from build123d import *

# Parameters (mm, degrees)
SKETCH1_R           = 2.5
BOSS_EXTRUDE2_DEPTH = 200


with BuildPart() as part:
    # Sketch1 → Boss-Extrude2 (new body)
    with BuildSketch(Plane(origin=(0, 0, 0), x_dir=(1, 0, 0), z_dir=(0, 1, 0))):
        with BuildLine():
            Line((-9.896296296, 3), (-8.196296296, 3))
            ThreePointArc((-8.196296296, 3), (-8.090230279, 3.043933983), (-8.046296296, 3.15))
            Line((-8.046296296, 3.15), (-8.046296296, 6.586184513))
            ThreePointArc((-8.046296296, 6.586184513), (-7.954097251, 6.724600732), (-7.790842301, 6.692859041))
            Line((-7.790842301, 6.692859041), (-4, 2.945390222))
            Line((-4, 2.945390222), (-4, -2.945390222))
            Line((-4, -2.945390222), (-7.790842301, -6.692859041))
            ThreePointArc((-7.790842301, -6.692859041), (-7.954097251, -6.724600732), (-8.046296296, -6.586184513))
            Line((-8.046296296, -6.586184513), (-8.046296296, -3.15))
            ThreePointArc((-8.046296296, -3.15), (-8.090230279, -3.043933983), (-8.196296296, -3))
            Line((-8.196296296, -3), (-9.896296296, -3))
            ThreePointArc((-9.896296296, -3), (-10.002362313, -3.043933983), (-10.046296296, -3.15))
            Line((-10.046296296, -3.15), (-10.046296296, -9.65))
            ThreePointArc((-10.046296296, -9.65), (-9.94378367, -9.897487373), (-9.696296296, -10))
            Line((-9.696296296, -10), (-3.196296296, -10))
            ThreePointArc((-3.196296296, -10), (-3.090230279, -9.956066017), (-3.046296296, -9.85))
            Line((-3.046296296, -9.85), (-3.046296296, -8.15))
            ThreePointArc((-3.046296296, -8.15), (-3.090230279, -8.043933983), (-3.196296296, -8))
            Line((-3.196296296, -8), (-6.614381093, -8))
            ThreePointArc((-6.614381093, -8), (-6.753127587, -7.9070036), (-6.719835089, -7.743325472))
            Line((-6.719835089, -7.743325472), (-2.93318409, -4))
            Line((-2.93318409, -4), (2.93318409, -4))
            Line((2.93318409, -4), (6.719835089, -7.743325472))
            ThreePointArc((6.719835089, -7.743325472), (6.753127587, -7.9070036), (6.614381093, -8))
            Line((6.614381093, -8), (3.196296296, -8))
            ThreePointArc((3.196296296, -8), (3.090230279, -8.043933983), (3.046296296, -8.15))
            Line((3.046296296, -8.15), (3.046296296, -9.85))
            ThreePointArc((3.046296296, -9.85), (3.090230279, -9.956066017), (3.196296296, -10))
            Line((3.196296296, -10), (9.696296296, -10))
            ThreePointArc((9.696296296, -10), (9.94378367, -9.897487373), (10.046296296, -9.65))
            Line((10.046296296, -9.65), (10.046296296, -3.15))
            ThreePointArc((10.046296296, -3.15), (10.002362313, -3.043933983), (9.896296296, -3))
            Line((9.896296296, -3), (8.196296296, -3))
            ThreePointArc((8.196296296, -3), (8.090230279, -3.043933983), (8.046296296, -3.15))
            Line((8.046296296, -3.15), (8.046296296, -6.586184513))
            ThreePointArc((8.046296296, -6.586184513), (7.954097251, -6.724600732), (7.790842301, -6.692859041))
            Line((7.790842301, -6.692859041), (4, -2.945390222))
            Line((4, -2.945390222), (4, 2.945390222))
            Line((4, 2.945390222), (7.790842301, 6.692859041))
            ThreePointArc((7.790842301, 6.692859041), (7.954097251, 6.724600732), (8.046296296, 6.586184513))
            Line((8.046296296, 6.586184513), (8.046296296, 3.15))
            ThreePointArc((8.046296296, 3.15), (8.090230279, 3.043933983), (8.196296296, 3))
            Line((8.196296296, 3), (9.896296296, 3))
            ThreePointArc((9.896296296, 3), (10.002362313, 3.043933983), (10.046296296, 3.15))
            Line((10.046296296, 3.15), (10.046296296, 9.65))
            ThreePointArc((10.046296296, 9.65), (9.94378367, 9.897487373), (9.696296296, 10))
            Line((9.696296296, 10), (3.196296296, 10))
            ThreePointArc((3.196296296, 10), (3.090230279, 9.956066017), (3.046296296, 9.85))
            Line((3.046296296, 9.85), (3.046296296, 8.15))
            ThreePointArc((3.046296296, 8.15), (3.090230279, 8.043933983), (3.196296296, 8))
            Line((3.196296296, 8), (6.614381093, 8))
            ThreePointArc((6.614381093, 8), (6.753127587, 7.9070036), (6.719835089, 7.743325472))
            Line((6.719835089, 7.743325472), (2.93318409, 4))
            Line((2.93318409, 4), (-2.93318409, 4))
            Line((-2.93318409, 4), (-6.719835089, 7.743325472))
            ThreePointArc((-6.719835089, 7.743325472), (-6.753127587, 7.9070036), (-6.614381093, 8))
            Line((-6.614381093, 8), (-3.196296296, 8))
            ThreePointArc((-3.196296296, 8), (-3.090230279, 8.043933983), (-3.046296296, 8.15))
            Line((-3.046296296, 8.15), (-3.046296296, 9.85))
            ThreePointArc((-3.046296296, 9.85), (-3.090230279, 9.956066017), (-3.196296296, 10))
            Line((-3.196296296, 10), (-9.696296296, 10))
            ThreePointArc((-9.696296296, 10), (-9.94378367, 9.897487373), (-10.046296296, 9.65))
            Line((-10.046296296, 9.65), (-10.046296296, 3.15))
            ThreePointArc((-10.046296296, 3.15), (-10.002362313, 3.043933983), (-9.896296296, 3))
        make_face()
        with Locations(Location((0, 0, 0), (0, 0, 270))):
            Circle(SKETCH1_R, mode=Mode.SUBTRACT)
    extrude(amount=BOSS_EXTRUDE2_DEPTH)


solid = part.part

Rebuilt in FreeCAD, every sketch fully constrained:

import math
import FreeCAD as App
import Part
import Sketcher

V = App.Vector
Q = App.Units.Quantity

doc = App.newDocument("Part")
body = doc.addObject("PartDesign::Body", "Body")

sketch1 = doc.addObject("Sketcher::SketchObject", "Sketch")
body.addObject(sketch1)
sketch1.AttachmentSupport = (doc.XZ_Plane, [""])
sketch1.MapMode = "FlatFace"
sketch1.addGeometry([
    Part.LineSegment(V(-9.9, -3, 0), V(-8.2, -3, 0)),
    Part.ArcOfCircle(Part.Circle(V(-8.2, -3.15, 0), V(0, 0, 1), 0.15), math.radians(0), math.radians(90)),
    Part.LineSegment(V(-8.05, -3.15, 0), V(-8.05, -6.59, 0)),
    Part.ArcOfCircle(Part.Circle(V(-7.9, -6.59, 0), V(0, 0, 1), 0.15), math.radians(180), math.radians(315)),
    Part.LineSegment(V(-7.79, -6.69, 0), V(-4, -2.95, 0)),
    Part.LineSegment(V(-4, -2.95, 0), V(-4, 2.95, 0)),
    Part.LineSegment(V(-4, 2.95, 0), V(-7.79, 6.69, 0)),
    Part.ArcOfCircle(Part.Circle(V(-7.9, 6.59, 0), V(0, 0, 1), 0.15), math.radians(45), math.radians(180)),
    Part.LineSegment(V(-8.05, 6.59, 0), V(-8.05, 3.15, 0)),
    Part.ArcOfCircle(Part.Circle(V(-8.2, 3.15, 0), V(0, 0, 1), 0.15), math.radians(-90), math.radians(0)),
    Part.LineSegment(V(-8.2, 3, 0), V(-9.9, 3, 0)),
    Part.ArcOfCircle(Part.Circle(V(-9.9, 3.15, 0), V(0, 0, 1), 0.15), math.radians(-180), math.radians(-90)),
    Part.LineSegment(V(-10.05, 3.15, 0), V(-10.05, 9.65, 0)),
    Part.ArcOfCircle(Part.Circle(V(-9.7, 9.65, 0), V(0, 0, 1), 0.35), math.radians(90), math.radians(180)),
    Part.LineSegment(V(-9.7, 10, 0), V(-3.2, 10, 0)),
    Part.ArcOfCircle(Part.Circle(V(-3.2, 9.85, 0), V(0, 0, 1), 0.15), math.radians(0), math.radians(90)),
    Part.LineSegment(V(-3.05, 9.85, 0), V(-3.05, 8.15, 0)),
    Part.ArcOfCircle(Part.Circle(V(-3.2, 8.15, 0), V(0, 0, 1), 0.15), math.radians(-90), math.radians(0)),
    Part.LineSegment(V(-3.2, 8, 0), V(-6.61, 8, 0)),
    Part.ArcOfCircle(Part.Circle(V(-6.61, 7.85, 0), V(0, 0, 1), 0.15), math.radians(90), math.radians(225)),
    Part.LineSegment(V(-6.72, 7.74, 0), V(-2.93, 4, 0)),
    Part.LineSegment(V(-2.93, 4, 0), V(2.93, 4, 0)),
    Part.LineSegment(V(2.93, 4, 0), V(6.72, 7.74, 0)),
    Part.ArcOfCircle(Part.Circle(V(6.61, 7.85, 0), V(0, 0, 1), 0.15), math.radians(-45), math.radians(90)),
    Part.LineSegment(V(6.61, 8, 0), V(3.2, 8, 0)),
    Part.ArcOfCircle(Part.Circle(V(3.2, 8.15, 0), V(0, 0, 1), 0.15), math.radians(-180), math.radians(-90)),
    Part.LineSegment(V(3.05, 8.15, 0), V(3.05, 9.85, 0)),
    Part.ArcOfCircle(Part.Circle(V(3.2, 9.85, 0), V(0, 0, 1), 0.15), math.radians(90), math.radians(180)),
    Part.LineSegment(V(3.2, 10, 0), V(9.7, 10, 0)),
    Part.ArcOfCircle(Part.Circle(V(9.7, 9.65, 0), V(0, 0, 1), 0.35), math.radians(0), math.radians(90)),
    Part.LineSegment(V(10.05, 9.65, 0), V(10.05, 3.15, 0)),
    Part.ArcOfCircle(Part.Circle(V(9.9, 3.15, 0), V(0, 0, 1), 0.15), math.radians(-90), math.radians(0)),
    Part.LineSegment(V(9.9, 3, 0), V(8.2, 3, 0)),
    Part.ArcOfCircle(Part.Circle(V(8.2, 3.15, 0), V(0, 0, 1), 0.15), math.radians(-180), math.radians(-90)),
    Part.LineSegment(V(8.05, 3.15, 0), V(8.05, 6.59, 0)),
    Part.ArcOfCircle(Part.Circle(V(7.9, 6.59, 0), V(0, 0, 1), 0.15), math.radians(0), math.radians(135)),
    Part.LineSegment(V(7.79, 6.69, 0), V(4, 2.95, 0)),
    Part.LineSegment(V(4, 2.95, 0), V(4, -2.95, 0)),
    Part.LineSegment(V(4, -2.95, 0), V(7.79, -6.69, 0)),
    Part.ArcOfCircle(Part.Circle(V(7.9, -6.59, 0), V(0, 0, 1), 0.15), math.radians(-135), math.radians(0)),
    Part.LineSegment(V(8.05, -6.59, 0), V(8.05, -3.15, 0)),
    Part.ArcOfCircle(Part.Circle(V(8.2, -3.15, 0), V(0, 0, 1), 0.15), math.radians(90), math.radians(180)),
    Part.LineSegment(V(8.2, -3, 0), V(9.9, -3, 0)),
    Part.ArcOfCircle(Part.Circle(V(9.9, -3.15, 0), V(0, 0, 1), 0.15), math.radians(0), math.radians(90)),
    Part.LineSegment(V(10.05, -3.15, 0), V(10.05, -9.65, 0)),
    Part.ArcOfCircle(Part.Circle(V(9.7, -9.65, 0), V(0, 0, 1), 0.35), math.radians(-90), math.radians(0)),
    Part.LineSegment(V(9.7, -10, 0), V(3.2, -10, 0)),
    Part.ArcOfCircle(Part.Circle(V(3.2, -9.85, 0), V(0, 0, 1), 0.15), math.radians(-180), math.radians(-90)),
    Part.LineSegment(V(3.05, -9.85, 0), V(3.05, -8.15, 0)),
    Part.ArcOfCircle(Part.Circle(V(3.2, -8.15, 0), V(0, 0, 1), 0.15), math.radians(90), math.radians(180)),
    Part.LineSegment(V(3.2, -8, 0), V(6.61, -8, 0)),
    Part.ArcOfCircle(Part.Circle(V(6.61, -7.85, 0), V(0, 0, 1), 0.15), math.radians(-90), math.radians(45)),
    Part.LineSegment(V(6.72, -7.74, 0), V(2.93, -4, 0)),
    Part.LineSegment(V(2.93, -4, 0), V(-2.93, -4, 0)),
    Part.LineSegment(V(-2.93, -4, 0), V(-6.72, -7.74, 0)),
    Part.ArcOfCircle(Part.Circle(V(-6.61, -7.85, 0), V(0, 0, 1), 0.15), math.radians(135), math.radians(270)),
    Part.LineSegment(V(-6.61, -8, 0), V(-3.2, -8, 0)),
    Part.ArcOfCircle(Part.Circle(V(-3.2, -8.15, 0), V(0, 0, 1), 0.15), math.radians(0), math.radians(90)),
    Part.LineSegment(V(-3.05, -8.15, 0), V(-3.05, -9.85, 0)),
    Part.ArcOfCircle(Part.Circle(V(-3.2, -9.85, 0), V(0, 0, 1), 0.15), math.radians(-90), math.radians(0)),
    Part.LineSegment(V(-3.2, -10, 0), V(-9.7, -10, 0)),
    Part.ArcOfCircle(Part.Circle(V(-9.7, -9.65, 0), V(0, 0, 1), 0.35), math.radians(180), math.radians(270)),
    Part.LineSegment(V(-10.05, -9.65, 0), V(-10.05, -3.15, 0)),
    Part.ArcOfCircle(Part.Circle(V(-9.9, -3.15, 0), V(0, 0, 1), 0.15), math.radians(90), math.radians(180)),
    Part.Circle(V(0, 0, 0), V(0, 0, 1), 2.5),
], False)
sketch1.addConstraint([
    Sketcher.Constraint("Tangent", 0, 2, 1, 2),
    Sketcher.Constraint("Tangent", 1, 1, 2, 1),
    Sketcher.Constraint("Tangent", 2, 2, 3, 1),
    Sketcher.Constraint("Tangent", 3, 2, 4, 1),
    Sketcher.Constraint("Coincident", 4, 2, 5, 1),
    Sketcher.Constraint("Coincident", 5, 2, 6, 1),
    Sketcher.Constraint("Tangent", 6, 2, 7, 1),
    Sketcher.Constraint("Tangent", 7, 2, 8, 1),
    Sketcher.Constraint("Tangent", 8, 2, 9, 2),
    Sketcher.Constraint("Tangent", 9, 1, 10, 1),
    Sketcher.Constraint("Tangent", 10, 2, 11, 2),
    Sketcher.Constraint("Tangent", 11, 1, 12, 1),
    Sketcher.Constraint("Tangent", 12, 2, 13, 2),
    Sketcher.Constraint("Tangent", 13, 1, 14, 1),
    Sketcher.Constraint("Tangent", 14, 2, 15, 2),
    Sketcher.Constraint("Tangent", 15, 1, 16, 1),
    Sketcher.Constraint("Tangent", 16, 2, 17, 2),
    Sketcher.Constraint("Tangent", 17, 1, 18, 1),
    Sketcher.Constraint("Tangent", 18, 2, 19, 1),
    Sketcher.Constraint("Tangent", 19, 2, 20, 1),
    Sketcher.Constraint("Coincident", 20, 2, 21, 1),
    Sketcher.Constraint("Coincident", 21, 2, 22, 1),
    Sketcher.Constraint("Tangent", 22, 2, 23, 1),
    Sketcher.Constraint("Tangent", 23, 2, 24, 1),
    Sketcher.Constraint("Tangent", 24, 2, 25, 2),
    Sketcher.Constraint("Tangent", 25, 1, 26, 1),
    Sketcher.Constraint("Tangent", 26, 2, 27, 2),
    Sketcher.Constraint("Tangent", 27, 1, 28, 1),
    Sketcher.Constraint("Tangent", 28, 2, 29, 2),
    Sketcher.Constraint("Tangent", 29, 1, 30, 1),
    Sketcher.Constraint("Tangent", 30, 2, 31, 2),
    Sketcher.Constraint("Tangent", 31, 1, 32, 1),
    Sketcher.Constraint("Tangent", 32, 2, 33, 2),
    Sketcher.Constraint("Tangent", 33, 1, 34, 1),
    Sketcher.Constraint("Tangent", 34, 2, 35, 1),
    Sketcher.Constraint("Tangent", 35, 2, 36, 1),
    Sketcher.Constraint("Coincident", 36, 2, 37, 1),
    Sketcher.Constraint("Coincident", 37, 2, 38, 1),
    Sketcher.Constraint("Tangent", 38, 2, 39, 1),
    Sketcher.Constraint("Tangent", 39, 2, 40, 1),
    Sketcher.Constraint("Tangent", 40, 2, 41, 2),
    Sketcher.Constraint("Tangent", 41, 1, 42, 1),
    Sketcher.Constraint("Tangent", 42, 2, 43, 2),
    Sketcher.Constraint("Tangent", 43, 1, 44, 1),
    Sketcher.Constraint("Tangent", 44, 2, 45, 2),
    Sketcher.Constraint("Tangent", 45, 1, 46, 1),
    Sketcher.Constraint("Tangent", 46, 2, 47, 2),
    Sketcher.Constraint("Tangent", 47, 1, 48, 1),
    Sketcher.Constraint("Tangent", 48, 2, 49, 2),
    Sketcher.Constraint("Tangent", 49, 1, 50, 1),
    Sketcher.Constraint("Tangent", 50, 2, 51, 1),
    Sketcher.Constraint("Tangent", 51, 2, 52, 1),
    Sketcher.Constraint("Coincident", 52, 2, 53, 1),
    Sketcher.Constraint("Coincident", 53, 2, 54, 1),
    Sketcher.Constraint("Tangent", 54, 2, 55, 1),
    Sketcher.Constraint("Tangent", 55, 2, 56, 1),
    Sketcher.Constraint("Tangent", 56, 2, 57, 2),
    Sketcher.Constraint("Tangent", 57, 1, 58, 1),
    Sketcher.Constraint("Tangent", 58, 2, 59, 2),
    Sketcher.Constraint("Tangent", 59, 1, 60, 1),
    Sketcher.Constraint("Tangent", 60, 2, 61, 2),
    Sketcher.Constraint("Tangent", 61, 1, 62, 1),
    Sketcher.Constraint("Tangent", 62, 2, 63, 2),
    Sketcher.Constraint("Tangent", 63, 1, 0, 1),
    Sketcher.Constraint("Horizontal", 0),
    Sketcher.Constraint("Vertical", 2),
    Sketcher.Constraint("Vertical", 5),
    Sketcher.Constraint("Vertical", 8),
    Sketcher.Constraint("Horizontal", 10),
    Sketcher.Constraint("Vertical", 12),
    Sketcher.Constraint("Horizontal", 14),
    Sketcher.Constraint("Vertical", 16),
    Sketcher.Constraint("Horizontal", 18),
    Sketcher.Constraint("Horizontal", 21),
    Sketcher.Constraint("Horizontal", 24),
    Sketcher.Constraint("Vertical", 26),
    Sketcher.Constraint("Horizontal", 28),
    Sketcher.Constraint("Vertical", 30),
    Sketcher.Constraint("Horizontal", 32),
    Sketcher.Constraint("Vertical", 34),
    Sketcher.Constraint("Vertical", 37),
    Sketcher.Constraint("Vertical", 40),
    Sketcher.Constraint("Horizontal", 42),
    Sketcher.Constraint("Vertical", 44),
    Sketcher.Constraint("Horizontal", 46),
    Sketcher.Constraint("Vertical", 48),
    Sketcher.Constraint("Horizontal", 50),
    Sketcher.Constraint("Horizontal", 53),
    Sketcher.Constraint("Horizontal", 56),
    Sketcher.Constraint("Vertical", 58),
    Sketcher.Constraint("Horizontal", 60),
    Sketcher.Constraint("Vertical", 62),
    Sketcher.Constraint("Coincident", 64, 3, -1, 1),
    Sketcher.Constraint("Equal", 1, 3),
    Sketcher.Constraint("Equal", 3, 7),
    Sketcher.Constraint("Equal", 7, 9),
    Sketcher.Constraint("Equal", 9, 11),
    Sketcher.Constraint("Equal", 11, 15),
    Sketcher.Constraint("Equal", 15, 17),
    Sketcher.Constraint("Equal", 17, 19),
    Sketcher.Constraint("Equal", 19, 23),
    Sketcher.Constraint("Equal", 23, 25),
    Sketcher.Constraint("Equal", 25, 27),
    Sketcher.Constraint("Equal", 13, 29),
    Sketcher.Constraint("Equal", 27, 31),
    Sketcher.Constraint("Equal", 31, 33),
    Sketcher.Constraint("Equal", 33, 35),
    Sketcher.Constraint("Equal", 35, 39),
    Sketcher.Constraint("Equal", 39, 41),
    Sketcher.Constraint("Equal", 41, 43),
    Sketcher.Constraint("Equal", 29, 45),
    Sketcher.Constraint("Equal", 43, 47),
    Sketcher.Constraint("Equal", 47, 49),
    Sketcher.Constraint("Equal", 49, 51),
    Sketcher.Constraint("Equal", 51, 55),
    Sketcher.Constraint("Equal", 55, 57),
    Sketcher.Constraint("Equal", 57, 59),
    Sketcher.Constraint("Equal", 45, 61),
    Sketcher.Constraint("Equal", 59, 63),
    Sketcher.Constraint("Symmetric", 1, 3, 33, 3, -1, 1),
    Sketcher.Constraint("Symmetric", 7, 3, 39, 3, -1, 1),
    Sketcher.Constraint("Symmetric", 11, 3, 43, 3, -1, 1),
    Sketcher.Constraint("Symmetric", 15, 3, 47, 3, -1, 1),
    Sketcher.Constraint("Symmetric", 19, 3, 51, 3, -1, 1),
    Sketcher.Constraint("Symmetric", 23, 3, 55, 3, -1, 1),
    Sketcher.Constraint("Symmetric", 27, 3, 59, 3, -1, 1),
    Sketcher.Constraint("Symmetric", 3, 2, 35, 2, -1, 1),
    Sketcher.Constraint("Symmetric", 5, 2, 37, 2, -1, 1),
    Sketcher.Constraint("Symmetric", 20, 2, 52, 2, -1, 1),
    Sketcher.Constraint("Symmetric", 19, 3, 23, 3, -2),
    Sketcher.Constraint("Symmetric", 15, 3, 27, 3, -2),
    Sketcher.Constraint("Symmetric", 11, 3, 31, 3, -2),
    Sketcher.Constraint("Symmetric", 7, 3, 35, 3, -2),
    Sketcher.Constraint("Parallel", 6, 20),
    Sketcher.Constraint("Parallel", 4, 22),
    Sketcher.Constraint("Parallel", 36, 54),
    Sketcher.Constraint("Horizontal", 19, 2, 22, 2),
    Sketcher.Constraint("Vertical", 13, 3, 61, 3),
    Sketcher.Constraint("Equal", 60, 12),
    Sketcher.Constraint("Equal", 42, 16),
    Sketcher.Constraint("Diameter", 64, Q("5 mm")),
    Sketcher.Constraint("Radius", 1, Q("0.15 mm")),
    Sketcher.Constraint("Radius", 13, Q("0.35 mm")),
    Sketcher.Constraint("DistanceX", 0, 1, 0, 2, Q("1.7 mm")),
    Sketcher.Constraint("DistanceX", 14, 1, 14, 2, Q("6.5 mm")),
    Sketcher.Constraint("DistanceY", 0, 2, -1, 1, Q("3 mm")),
    Sketcher.Constraint("DistanceX", 4, 2, -1, 1, Q("4 mm")),
    Sketcher.Constraint("DistanceY", -1, 1, 20, 2, Q("4 mm")),
    Sketcher.Constraint("DistanceX", 21, 1, 21, 2, Q("5.866368 mm")),
    Sketcher.Constraint("DistanceY", 5, 1, 5, 2, Q("5.89078 mm")),
    Sketcher.Constraint("Distance", 4, Q("5.330479 mm")),
    Sketcher.Constraint("DistanceX", 18, 2, 18, 1, Q("3.418085 mm")),
])
pad1 = doc.addObject("PartDesign::Pad", "Pad")
body.addObject(pad1)
pad1.Profile = sketch1
pad1.Length = 200
pad1.Reversed = True

doc.recompute()
